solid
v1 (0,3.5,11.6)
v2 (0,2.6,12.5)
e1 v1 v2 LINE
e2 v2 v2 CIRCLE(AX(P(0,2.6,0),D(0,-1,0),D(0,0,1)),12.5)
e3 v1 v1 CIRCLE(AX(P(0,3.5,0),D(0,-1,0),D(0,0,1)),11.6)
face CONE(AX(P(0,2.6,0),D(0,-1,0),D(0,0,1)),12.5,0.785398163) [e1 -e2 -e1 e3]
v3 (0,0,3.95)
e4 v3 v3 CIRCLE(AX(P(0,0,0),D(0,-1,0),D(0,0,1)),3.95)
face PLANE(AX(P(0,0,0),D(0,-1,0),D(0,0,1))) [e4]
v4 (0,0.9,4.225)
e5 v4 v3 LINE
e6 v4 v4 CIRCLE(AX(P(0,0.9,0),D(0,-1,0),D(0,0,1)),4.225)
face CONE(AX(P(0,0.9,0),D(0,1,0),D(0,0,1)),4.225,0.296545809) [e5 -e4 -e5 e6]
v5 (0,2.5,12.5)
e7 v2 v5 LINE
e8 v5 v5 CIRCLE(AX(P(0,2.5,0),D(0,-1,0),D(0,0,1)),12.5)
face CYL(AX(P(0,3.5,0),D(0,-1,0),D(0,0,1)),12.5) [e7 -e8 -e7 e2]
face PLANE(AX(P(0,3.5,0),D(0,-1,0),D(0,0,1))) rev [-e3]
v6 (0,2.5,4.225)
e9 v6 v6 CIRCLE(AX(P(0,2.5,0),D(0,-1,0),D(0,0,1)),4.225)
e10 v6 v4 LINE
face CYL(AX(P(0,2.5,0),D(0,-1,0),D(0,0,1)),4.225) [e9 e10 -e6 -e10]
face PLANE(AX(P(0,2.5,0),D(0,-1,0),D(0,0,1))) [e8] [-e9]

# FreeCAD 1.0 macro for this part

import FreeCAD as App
import Part
import Sketcher
from FreeCAD import Vector
Q = App.Units.Quantity


def edges_at(feature, points):
    """Names of the edges that pass closest to the given points."""
    edges = feature.Shape.Edges
    near = lambda p: min(range(len(edges)), key=lambda i: edges[i].distToShape(Part.Vertex(*p))[0])
    return sorted({f"Edge{near(p) + 1}" for p in points})


def add_polygon(sketch, points):
    """Adds a closed chain of lines whose ends are joined by coincident constraints."""
    first, n = sketch.GeometryCount, len(points)
    for a, b in zip(points, points[1:] + points[:1]):
        sketch.addGeometry(Part.LineSegment(App.Vector(*a, 0), App.Vector(*b, 0)), False)
    for i in range(n):
        sketch.addConstraint(Sketcher.Constraint("Coincident", first + i, 2, first + (i + 1) % n, 1))

doc = App.newDocument("Part")
body = doc.addObject("PartDesign::Body", "Body")

# Sketch on YZ plane
sketch1 = body.newObject("Sketcher::SketchObject", "Sketch")
sketch1.AttachmentSupport = (doc.getObject("YZ_Plane"), [""])
sketch1.MapMode = "FlatFace"
add_polygon(sketch1, [(0, 0), (3.5, 0), (3.5, 12.5), (2.5, 12.5), (2.5, 4.2), (0.9, 4.2), (0, 4)])  # lines 0-6
sketch1.addConstraint([
    Sketcher.Constraint("Horizontal", 0),
    Sketcher.Constraint("Vertical", 1),
    Sketcher.Constraint("Horizontal", 2),
    Sketcher.Constraint("Vertical", 3),
    Sketcher.Constraint("Horizontal", 4),
    Sketcher.Constraint("Vertical", 6),
    Sketcher.Constraint("Coincident", 6, 2, -1, 1),
    Sketcher.Constraint("DistanceX", 2, 2, 2, 1, Q("1 mm")),
    Sketcher.Constraint("DistanceX", 0, 1, 0, 2, Q("3.5 mm")),
    Sketcher.Constraint("DistanceX", 4, 2, 4, 1, Q("1.6 mm")),
    Sketcher.Constraint("DistanceY", 1, 1, 1, 2, Q("12.5 mm")),
    Sketcher.Constraint("DistanceY", 6, 2, 6, 1, Q("3.95 mm")),
    Sketcher.Constraint("DistanceY", 3, 2, 3, 1, Q("8.275 mm")),
])
revolution = body.newObject("PartDesign::Revolution", "Revolution")
revolution.Profile = sketch1
revolution.ReferenceAxis = (sketch1, ["H_Axis"])
revolution.Angle = 360
doc.recompute()

chamfer = body.newObject("PartDesign::Chamfer", "Chamfer")
chamfer.Base = (revolution, edges_at(revolution, [(0, 3.5, -12.5)]))
chamfer.Size = 0.9

doc.recompute()
